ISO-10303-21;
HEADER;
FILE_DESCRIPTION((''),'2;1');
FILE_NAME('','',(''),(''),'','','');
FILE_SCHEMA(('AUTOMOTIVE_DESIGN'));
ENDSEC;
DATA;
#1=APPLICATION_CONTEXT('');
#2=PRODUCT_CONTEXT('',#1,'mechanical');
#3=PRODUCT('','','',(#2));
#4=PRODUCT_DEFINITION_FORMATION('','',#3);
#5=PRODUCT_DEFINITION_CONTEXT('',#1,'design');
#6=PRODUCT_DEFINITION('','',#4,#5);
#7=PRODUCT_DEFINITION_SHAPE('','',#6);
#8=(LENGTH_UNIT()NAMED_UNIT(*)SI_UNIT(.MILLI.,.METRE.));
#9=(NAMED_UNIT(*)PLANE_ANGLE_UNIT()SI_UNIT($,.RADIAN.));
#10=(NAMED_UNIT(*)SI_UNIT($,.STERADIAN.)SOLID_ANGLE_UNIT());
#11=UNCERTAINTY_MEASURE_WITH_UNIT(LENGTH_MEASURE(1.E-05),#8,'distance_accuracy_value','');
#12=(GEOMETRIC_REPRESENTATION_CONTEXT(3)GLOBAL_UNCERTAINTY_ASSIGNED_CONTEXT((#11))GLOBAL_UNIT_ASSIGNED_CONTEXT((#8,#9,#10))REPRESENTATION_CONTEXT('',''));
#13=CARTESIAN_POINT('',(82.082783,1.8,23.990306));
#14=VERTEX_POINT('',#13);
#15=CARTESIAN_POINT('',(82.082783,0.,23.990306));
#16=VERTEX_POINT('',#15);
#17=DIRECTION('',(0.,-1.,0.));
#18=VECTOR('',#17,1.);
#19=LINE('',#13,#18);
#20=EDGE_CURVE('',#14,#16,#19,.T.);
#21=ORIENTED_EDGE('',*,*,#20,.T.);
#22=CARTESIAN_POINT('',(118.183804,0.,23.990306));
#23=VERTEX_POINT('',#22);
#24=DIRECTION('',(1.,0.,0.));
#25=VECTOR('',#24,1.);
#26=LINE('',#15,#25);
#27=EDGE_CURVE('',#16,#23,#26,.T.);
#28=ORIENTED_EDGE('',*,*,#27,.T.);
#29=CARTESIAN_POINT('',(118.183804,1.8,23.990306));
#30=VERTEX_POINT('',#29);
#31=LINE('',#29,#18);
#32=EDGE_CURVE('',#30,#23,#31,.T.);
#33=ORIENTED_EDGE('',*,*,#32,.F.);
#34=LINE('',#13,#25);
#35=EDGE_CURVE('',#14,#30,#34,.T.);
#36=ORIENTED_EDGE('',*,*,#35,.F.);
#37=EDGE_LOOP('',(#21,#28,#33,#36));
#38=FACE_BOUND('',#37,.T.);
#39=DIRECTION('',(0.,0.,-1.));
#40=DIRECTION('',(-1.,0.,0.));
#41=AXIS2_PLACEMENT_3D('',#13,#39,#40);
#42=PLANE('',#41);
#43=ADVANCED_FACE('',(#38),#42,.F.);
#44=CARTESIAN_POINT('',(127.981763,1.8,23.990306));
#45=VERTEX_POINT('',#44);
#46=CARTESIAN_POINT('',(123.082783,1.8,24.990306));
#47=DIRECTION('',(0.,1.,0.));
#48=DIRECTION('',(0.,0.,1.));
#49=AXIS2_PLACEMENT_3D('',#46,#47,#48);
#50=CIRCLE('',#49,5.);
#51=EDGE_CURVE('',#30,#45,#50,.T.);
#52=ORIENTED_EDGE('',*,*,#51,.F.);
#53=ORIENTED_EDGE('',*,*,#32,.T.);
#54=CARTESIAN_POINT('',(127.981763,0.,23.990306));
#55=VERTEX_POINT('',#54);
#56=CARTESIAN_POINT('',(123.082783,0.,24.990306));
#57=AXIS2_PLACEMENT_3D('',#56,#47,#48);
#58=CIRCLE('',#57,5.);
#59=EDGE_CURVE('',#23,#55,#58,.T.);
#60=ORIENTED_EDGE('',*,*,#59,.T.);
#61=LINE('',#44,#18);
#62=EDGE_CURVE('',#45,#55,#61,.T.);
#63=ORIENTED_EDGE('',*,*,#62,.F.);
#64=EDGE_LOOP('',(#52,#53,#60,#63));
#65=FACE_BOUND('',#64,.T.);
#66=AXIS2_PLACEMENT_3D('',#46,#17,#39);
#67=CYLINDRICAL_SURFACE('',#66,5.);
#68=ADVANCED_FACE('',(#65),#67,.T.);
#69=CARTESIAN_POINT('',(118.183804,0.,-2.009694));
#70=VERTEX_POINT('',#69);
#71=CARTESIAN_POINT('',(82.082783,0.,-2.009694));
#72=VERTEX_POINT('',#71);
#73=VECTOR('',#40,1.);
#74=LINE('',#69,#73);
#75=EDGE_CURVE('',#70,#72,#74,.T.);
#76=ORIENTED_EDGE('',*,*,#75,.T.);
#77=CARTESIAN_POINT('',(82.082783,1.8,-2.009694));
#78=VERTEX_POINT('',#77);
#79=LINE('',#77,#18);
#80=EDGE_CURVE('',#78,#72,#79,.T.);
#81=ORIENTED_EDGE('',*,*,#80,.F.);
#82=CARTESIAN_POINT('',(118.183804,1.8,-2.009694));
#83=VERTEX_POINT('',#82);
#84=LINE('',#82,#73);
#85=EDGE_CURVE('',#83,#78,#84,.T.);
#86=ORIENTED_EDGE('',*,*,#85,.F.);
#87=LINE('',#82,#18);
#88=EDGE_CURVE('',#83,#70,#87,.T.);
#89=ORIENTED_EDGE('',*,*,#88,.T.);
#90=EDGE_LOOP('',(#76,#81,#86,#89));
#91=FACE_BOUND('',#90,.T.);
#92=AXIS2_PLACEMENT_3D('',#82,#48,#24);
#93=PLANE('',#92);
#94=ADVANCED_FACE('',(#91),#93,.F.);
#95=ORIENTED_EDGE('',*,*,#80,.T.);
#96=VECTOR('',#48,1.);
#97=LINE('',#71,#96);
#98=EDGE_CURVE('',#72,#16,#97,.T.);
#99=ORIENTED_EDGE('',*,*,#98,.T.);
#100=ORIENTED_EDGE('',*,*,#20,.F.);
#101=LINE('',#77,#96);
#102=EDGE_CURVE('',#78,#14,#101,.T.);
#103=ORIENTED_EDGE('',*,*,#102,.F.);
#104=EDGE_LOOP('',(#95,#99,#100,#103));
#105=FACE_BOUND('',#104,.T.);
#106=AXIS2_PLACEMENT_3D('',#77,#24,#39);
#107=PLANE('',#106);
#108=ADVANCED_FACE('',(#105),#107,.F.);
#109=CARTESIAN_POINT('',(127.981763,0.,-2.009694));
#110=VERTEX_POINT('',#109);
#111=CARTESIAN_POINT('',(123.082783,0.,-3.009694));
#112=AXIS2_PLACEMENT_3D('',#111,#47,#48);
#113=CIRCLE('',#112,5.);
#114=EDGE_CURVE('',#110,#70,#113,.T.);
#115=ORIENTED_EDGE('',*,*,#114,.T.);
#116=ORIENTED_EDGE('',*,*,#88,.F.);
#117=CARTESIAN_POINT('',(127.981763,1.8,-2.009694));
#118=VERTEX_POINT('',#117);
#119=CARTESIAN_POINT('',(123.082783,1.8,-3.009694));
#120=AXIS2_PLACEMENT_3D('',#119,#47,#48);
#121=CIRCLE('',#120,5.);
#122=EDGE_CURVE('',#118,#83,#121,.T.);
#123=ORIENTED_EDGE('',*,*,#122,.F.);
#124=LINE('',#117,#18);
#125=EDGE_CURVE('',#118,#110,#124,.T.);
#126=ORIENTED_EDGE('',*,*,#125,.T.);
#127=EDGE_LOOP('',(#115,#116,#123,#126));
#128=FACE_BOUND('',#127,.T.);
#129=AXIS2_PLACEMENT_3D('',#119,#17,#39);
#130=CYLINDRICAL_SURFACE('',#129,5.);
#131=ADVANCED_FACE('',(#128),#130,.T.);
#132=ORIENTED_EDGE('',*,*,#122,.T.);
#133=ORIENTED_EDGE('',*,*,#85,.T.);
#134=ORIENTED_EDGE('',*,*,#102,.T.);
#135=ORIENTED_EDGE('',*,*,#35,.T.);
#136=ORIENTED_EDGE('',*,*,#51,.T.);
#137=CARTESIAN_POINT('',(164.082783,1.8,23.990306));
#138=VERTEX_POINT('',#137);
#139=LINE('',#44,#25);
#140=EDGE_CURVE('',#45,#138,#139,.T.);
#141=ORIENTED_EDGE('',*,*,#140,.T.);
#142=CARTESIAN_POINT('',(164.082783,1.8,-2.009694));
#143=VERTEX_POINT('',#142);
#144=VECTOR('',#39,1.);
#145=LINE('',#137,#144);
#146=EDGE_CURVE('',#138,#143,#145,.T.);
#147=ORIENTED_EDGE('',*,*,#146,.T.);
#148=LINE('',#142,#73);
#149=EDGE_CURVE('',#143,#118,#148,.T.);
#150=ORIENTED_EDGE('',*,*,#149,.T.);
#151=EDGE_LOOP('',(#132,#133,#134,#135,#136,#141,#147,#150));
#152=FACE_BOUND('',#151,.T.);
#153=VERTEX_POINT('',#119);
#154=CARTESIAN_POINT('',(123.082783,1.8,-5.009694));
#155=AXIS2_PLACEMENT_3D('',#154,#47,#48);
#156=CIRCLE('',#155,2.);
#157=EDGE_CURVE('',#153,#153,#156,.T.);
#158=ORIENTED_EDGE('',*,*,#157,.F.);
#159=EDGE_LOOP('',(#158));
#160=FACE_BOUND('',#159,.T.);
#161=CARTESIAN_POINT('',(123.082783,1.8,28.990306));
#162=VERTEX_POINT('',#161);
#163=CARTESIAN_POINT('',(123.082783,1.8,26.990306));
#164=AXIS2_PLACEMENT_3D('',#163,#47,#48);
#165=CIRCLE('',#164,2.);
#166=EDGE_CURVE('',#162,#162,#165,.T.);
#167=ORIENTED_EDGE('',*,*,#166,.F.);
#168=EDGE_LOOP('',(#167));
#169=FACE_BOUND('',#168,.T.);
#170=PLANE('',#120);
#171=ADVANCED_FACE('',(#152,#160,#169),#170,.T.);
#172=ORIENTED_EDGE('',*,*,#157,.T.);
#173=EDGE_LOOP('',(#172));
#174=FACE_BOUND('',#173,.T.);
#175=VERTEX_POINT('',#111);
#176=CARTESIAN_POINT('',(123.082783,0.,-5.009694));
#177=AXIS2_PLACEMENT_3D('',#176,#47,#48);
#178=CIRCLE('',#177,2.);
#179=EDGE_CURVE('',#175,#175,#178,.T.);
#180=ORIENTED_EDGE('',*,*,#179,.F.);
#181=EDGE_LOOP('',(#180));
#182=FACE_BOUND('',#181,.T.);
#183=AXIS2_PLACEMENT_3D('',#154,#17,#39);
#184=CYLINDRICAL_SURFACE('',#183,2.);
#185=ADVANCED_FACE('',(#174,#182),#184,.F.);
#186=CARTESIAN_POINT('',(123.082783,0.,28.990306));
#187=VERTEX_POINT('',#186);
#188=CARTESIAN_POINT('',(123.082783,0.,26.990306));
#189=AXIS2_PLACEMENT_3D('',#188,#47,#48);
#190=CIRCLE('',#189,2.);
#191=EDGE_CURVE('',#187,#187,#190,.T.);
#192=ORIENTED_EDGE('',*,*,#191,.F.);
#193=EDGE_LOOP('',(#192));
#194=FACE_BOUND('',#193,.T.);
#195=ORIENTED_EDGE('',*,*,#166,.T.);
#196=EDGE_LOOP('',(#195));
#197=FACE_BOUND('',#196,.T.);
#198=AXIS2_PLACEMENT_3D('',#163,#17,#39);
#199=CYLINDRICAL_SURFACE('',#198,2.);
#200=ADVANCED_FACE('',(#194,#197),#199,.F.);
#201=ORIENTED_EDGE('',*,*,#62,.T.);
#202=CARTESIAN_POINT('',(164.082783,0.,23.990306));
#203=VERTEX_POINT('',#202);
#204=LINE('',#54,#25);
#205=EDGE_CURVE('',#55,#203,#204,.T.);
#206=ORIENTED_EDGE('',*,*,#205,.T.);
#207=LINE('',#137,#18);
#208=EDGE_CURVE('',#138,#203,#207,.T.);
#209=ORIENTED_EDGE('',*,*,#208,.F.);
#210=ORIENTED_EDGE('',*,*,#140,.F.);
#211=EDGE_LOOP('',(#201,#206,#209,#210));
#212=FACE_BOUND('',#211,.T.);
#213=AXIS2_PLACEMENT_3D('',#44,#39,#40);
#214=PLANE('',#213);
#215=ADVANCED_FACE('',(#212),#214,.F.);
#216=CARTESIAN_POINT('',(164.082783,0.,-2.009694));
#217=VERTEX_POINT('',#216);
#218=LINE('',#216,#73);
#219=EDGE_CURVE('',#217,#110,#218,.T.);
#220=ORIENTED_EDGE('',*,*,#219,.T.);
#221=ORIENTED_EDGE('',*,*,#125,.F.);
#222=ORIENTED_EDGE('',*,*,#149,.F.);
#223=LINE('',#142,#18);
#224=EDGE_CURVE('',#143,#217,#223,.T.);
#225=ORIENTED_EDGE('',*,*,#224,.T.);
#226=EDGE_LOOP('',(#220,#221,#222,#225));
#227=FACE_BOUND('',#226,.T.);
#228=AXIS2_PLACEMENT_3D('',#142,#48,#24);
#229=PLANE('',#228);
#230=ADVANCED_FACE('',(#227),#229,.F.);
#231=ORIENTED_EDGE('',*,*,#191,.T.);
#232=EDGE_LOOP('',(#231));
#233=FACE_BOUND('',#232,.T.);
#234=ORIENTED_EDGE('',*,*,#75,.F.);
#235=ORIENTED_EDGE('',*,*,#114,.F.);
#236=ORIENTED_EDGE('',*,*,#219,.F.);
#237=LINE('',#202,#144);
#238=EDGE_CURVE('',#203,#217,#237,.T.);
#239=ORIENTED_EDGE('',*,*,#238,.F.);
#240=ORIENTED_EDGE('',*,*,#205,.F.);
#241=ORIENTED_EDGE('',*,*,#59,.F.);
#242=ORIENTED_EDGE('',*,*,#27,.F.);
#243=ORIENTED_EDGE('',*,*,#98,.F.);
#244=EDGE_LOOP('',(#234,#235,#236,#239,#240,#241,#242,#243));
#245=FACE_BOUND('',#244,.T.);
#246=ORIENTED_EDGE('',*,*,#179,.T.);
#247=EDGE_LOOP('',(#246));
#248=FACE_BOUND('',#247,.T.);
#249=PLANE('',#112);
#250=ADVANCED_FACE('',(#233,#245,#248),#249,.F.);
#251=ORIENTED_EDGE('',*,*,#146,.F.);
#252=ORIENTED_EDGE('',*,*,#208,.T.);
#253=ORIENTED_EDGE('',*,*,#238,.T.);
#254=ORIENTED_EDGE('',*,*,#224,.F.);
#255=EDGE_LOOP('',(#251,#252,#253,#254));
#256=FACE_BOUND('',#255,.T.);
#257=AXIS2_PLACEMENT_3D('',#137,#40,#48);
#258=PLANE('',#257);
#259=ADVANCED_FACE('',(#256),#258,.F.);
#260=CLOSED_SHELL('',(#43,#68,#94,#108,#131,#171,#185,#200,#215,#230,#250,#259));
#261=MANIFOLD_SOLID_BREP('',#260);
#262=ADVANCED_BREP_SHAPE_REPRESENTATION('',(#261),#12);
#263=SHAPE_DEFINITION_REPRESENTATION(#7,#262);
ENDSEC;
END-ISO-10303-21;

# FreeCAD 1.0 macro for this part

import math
import FreeCAD as App
import Part
import Sketcher
Q = App.Units.Quantity

doc = App.newDocument("Part")
body = doc.addObject("PartDesign::Body", "Body")

# Sketch on XZ plane
sketch1 = body.newObject("Sketcher::SketchObject", "Sketch")
sketch1.AttachmentSupport = (doc.getObject("XZ_Plane"), [""])
sketch1.MapMode = "FlatFace"
sketch1.addGeometry(Part.LineSegment(App.Vector(118.2, -2, 0), App.Vector(82.1, -2, 0)), False)
sketch1.addGeometry(Part.LineSegment(App.Vector(82.1, -2, 0), App.Vector(82.1, 24, 0)), False)
sketch1.addGeometry(Part.LineSegment(App.Vector(82.1, 24, 0), App.Vector(118.2, 24, 0)), False)
sketch1.addGeometry(Part.ArcOfCircle(Part.Circle(App.Vector(123.1, 25, 0), App.Vector(0, 0, 1), 5), math.radians(-12), math.radians(192)), False)
sketch1.addGeometry(Part.LineSegment(App.Vector(128, 24, 0), App.Vector(164.1, 24, 0)), False)
sketch1.addGeometry(Part.LineSegment(App.Vector(164.1, 24, 0), App.Vector(164.1, -2, 0)), False)
sketch1.addGeometry(Part.LineSegment(App.Vector(164.1, -2, 0), App.Vector(128, -2, 0)), False)
sketch1.addGeometry(Part.ArcOfCircle(Part.Circle(App.Vector(123.1, -3, 0), App.Vector(0, 0, 1), 5), math.radians(168), math.radians(372)), False)
sketch1.addGeometry(Part.Circle(App.Vector(123.1, 27, 0), App.Vector(0, 0, 1), 2), False)
sketch1.addGeometry(Part.Circle(App.Vector(123.1, -5, 0), App.Vector(0, 0, 1), 2), False)
sketch1.addConstraint(Sketcher.Constraint("Coincident", 0, 2, 1, 1))
sketch1.addConstraint(Sketcher.Constraint("Coincident", 1, 2, 2, 1))
sketch1.addConstraint(Sketcher.Constraint("Coincident", 2, 2, 3, 2))
sketch1.addConstraint(Sketcher.Constraint("Coincident", 3, 1, 4, 1))
sketch1.addConstraint(Sketcher.Constraint("Coincident", 4, 2, 5, 1))
sketch1.addConstraint(Sketcher.Constraint("Coincident", 5, 2, 6, 1))
sketch1.addConstraint(Sketcher.Constraint("Coincident", 6, 2, 7, 2))
sketch1.addConstraint(Sketcher.Constraint("Coincident", 7, 1, 0, 1))
sketch1.addConstraint(Sketcher.Constraint("Horizontal", 0))
sketch1.addConstraint(Sketcher.Constraint("Vertical", 1))
sketch1.addConstraint(Sketcher.Constraint("Horizontal", 2))
sketch1.addConstraint(Sketcher.Constraint("Horizontal", 4))
sketch1.addConstraint(Sketcher.Constraint("Vertical", 5))
sketch1.addConstraint(Sketcher.Constraint("Horizontal", 6))
sketch1.addConstraint(Sketcher.Constraint("Equal", 3, 7))
sketch1.addConstraint(Sketcher.Constraint("Equal", 8, 9))
sketch1.addConstraint(Sketcher.Constraint("Horizontal", 2, 2, 3, 1))
sketch1.addConstraint(Sketcher.Constraint("Horizontal", 0, 2, 5, 2))
sketch1.addConstraint(Sketcher.Constraint("Vertical", 3, 3, 7, 3))
sketch1.addConstraint(Sketcher.Constraint("Vertical", 7, 3, 8, 3))
sketch1.addConstraint(Sketcher.Constraint("Vertical", 8, 3, 9, 3))
sketch1.addConstraint(Sketcher.Constraint("Vertical", 3, 1, 6, 2))
sketch1.addConstraint(Sketcher.Constraint("Equal", 2, 4))
sketch1.addConstraint(Sketcher.Constraint("Diameter", 8, Q("4 mm")))
sketch1.addConstraint(Sketcher.Constraint("Radius", 3, Q("5 mm")))
sketch1.addConstraint(Sketcher.Constraint("DistanceY", 1, 1, 1, 2, Q("26 mm")))
sketch1.addConstraint(Sketcher.Constraint("DistanceY", 7, 3, 3, 3, Q("28 mm")))
sketch1.addConstraint(Sketcher.Constraint("DistanceY", 3, 3, 8, 3, Q("2 mm")))
sketch1.addConstraint(Sketcher.Constraint("DistanceY", 9, 3, 7, 3, Q("2 mm")))
sketch1.addConstraint(Sketcher.Constraint("DistanceX", 0, 2, 7, 3, Q("41 mm")))
sketch1.addConstraint(Sketcher.Constraint("DistanceX", -1, 1, 3, 3, Q("123.082783 mm")))
sketch1.addConstraint(Sketcher.Constraint("DistanceY", -1, 1, 3, 3, Q("24.990306 mm")))
pad1 = body.newObject("PartDesign::Pad", "Pad")
pad1.Profile = sketch1
pad1.Length = 1.8
pad1.Reversed = True

doc.recompute()
